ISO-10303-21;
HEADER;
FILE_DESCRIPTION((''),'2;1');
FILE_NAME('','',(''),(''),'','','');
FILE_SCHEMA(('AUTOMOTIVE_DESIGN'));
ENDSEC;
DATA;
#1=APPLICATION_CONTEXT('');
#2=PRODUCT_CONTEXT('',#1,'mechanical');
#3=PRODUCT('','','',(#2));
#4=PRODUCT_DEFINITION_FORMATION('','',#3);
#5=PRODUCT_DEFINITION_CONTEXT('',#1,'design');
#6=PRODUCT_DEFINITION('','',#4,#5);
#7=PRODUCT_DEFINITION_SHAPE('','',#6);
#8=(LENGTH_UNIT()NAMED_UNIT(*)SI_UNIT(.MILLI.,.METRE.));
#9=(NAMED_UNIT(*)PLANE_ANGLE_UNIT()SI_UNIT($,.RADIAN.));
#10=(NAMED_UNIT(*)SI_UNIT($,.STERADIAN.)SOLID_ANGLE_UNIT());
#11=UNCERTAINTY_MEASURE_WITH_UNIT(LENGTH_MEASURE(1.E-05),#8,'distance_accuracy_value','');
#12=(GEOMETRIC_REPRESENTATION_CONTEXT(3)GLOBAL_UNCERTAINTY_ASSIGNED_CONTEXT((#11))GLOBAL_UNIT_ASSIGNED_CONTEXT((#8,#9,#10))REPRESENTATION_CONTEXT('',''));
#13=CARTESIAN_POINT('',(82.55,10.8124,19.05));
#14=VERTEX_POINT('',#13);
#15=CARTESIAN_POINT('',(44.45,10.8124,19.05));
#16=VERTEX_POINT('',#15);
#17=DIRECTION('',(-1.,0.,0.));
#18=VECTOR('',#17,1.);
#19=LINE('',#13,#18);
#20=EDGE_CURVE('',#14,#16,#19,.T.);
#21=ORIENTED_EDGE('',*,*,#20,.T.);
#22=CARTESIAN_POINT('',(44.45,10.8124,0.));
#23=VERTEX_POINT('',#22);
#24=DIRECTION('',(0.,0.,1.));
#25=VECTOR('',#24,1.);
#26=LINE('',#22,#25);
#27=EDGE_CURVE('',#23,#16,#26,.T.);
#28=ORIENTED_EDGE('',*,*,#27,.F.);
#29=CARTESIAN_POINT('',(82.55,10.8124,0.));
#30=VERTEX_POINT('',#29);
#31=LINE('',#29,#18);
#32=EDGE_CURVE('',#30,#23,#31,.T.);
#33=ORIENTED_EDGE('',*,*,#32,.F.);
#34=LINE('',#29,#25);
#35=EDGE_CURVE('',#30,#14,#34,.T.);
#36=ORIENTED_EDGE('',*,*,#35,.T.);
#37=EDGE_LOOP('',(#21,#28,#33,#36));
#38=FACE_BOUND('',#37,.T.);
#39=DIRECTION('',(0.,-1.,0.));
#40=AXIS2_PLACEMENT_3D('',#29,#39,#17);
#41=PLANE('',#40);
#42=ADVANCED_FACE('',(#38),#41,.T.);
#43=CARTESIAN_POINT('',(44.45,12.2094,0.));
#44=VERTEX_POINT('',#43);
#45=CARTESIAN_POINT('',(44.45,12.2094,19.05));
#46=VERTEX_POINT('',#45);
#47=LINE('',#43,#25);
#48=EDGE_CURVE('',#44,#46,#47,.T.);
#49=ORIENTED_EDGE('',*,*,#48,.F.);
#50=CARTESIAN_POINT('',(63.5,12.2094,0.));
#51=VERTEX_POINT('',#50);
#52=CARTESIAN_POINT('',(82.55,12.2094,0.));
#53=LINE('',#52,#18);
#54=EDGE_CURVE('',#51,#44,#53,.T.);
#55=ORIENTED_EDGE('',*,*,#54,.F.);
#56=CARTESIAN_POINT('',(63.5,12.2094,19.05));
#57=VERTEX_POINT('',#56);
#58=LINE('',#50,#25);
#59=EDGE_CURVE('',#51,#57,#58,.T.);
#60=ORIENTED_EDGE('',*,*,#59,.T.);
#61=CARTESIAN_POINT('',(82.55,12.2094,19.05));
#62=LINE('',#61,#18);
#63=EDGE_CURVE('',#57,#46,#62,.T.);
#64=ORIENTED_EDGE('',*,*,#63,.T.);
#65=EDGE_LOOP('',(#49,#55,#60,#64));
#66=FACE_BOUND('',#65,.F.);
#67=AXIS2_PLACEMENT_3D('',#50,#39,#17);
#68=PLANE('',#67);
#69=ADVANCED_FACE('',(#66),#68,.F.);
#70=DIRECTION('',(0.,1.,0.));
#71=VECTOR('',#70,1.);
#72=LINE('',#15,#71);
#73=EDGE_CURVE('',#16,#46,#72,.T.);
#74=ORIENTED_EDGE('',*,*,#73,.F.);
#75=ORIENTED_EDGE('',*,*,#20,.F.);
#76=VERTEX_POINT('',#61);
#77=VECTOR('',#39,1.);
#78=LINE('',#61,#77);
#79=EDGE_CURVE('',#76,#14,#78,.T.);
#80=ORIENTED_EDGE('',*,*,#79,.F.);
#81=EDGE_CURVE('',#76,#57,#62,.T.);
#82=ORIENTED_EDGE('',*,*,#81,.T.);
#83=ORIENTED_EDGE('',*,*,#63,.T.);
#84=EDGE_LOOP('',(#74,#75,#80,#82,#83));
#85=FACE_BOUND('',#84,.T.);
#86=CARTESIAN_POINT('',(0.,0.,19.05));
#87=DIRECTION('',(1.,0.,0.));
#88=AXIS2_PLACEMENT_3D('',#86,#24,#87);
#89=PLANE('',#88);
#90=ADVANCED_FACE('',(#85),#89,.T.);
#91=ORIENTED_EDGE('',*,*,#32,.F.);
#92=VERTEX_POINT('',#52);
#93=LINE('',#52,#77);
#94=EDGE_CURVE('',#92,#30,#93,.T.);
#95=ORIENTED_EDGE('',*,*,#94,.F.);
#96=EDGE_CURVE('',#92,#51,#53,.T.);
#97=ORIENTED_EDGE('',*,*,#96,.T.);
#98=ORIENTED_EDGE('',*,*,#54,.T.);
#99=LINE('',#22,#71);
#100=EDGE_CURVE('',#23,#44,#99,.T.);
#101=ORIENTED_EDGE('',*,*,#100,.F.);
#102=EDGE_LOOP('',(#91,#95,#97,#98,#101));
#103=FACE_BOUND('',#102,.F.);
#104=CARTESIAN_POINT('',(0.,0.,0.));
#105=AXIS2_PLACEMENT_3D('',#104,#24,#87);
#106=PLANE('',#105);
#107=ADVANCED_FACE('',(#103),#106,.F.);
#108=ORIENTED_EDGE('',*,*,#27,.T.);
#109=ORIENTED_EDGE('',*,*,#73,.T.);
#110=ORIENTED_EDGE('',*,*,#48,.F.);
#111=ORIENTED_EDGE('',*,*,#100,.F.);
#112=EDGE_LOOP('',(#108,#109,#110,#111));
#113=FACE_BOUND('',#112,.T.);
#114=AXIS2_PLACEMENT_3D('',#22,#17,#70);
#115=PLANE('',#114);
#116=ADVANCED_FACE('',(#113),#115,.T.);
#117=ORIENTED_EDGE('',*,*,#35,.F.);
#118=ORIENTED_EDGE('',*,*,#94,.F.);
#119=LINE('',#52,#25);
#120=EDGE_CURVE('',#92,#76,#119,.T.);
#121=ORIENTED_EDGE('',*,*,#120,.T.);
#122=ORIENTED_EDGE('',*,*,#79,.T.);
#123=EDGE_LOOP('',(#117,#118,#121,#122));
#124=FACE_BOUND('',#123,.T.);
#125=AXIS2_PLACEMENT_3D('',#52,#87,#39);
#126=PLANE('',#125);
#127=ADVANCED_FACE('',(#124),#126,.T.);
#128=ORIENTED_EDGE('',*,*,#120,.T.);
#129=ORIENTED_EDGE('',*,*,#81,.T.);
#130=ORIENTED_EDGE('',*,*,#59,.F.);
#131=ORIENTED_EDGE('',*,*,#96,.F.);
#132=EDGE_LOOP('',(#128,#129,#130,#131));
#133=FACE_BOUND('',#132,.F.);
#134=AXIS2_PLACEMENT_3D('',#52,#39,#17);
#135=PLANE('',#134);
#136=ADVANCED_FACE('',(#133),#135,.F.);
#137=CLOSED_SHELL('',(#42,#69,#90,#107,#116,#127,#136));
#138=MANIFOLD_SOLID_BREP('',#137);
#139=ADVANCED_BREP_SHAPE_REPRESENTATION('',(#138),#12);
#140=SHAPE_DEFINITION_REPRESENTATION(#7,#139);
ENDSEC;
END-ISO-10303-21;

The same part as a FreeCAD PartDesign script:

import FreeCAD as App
import Part
import Sketcher
from FreeCAD import Vector
Q = App.Units.Quantity


def add_polygon(sketch, points):
    """Adds a closed chain of lines whose ends are joined by coincident constraints."""
    first, n = sketch.GeometryCount, len(points)
    for a, b in zip(points, points[1:] + points[:1]):
        sketch.addGeometry(Part.LineSegment(App.Vector(*a, 0), App.Vector(*b, 0)), False)
    for i in range(n):
        sketch.addConstraint(Sketcher.Constraint("Coincident", first + i, 2, first + (i + 1) % n, 1))

doc = App.newDocument("Part")
body = doc.addObject("PartDesign::Body", "Body")

# Sketch on XY plane
sketch1 = body.newObject("Sketcher::SketchObject", "Sketch")
sketch1.AttachmentSupport = (doc.getObject("XY_Plane"), [""])
sketch1.MapMode = "FlatFace"
add_polygon(sketch1, [(82.5, 10.8), (82.5, 12.2), (44.5, 12.2), (44.5, 10.8)])  # lines 0-3
sketch1.addConstraint([
    Sketcher.Constraint("Vertical", 0),
    Sketcher.Constraint("Horizontal", 1),
    Sketcher.Constraint("Vertical", 2),
    Sketcher.Constraint("Horizontal", 3),
    Sketcher.Constraint("DistanceX", 1, 2, 1, 1, Q("1.5 in")),
    Sketcher.Constraint("DistanceY", 0, 1, 0, 2, Q("0.055 in")),
    Sketcher.Constraint("DistanceX", -1, 1, 0, 2, Q("3.25 in")),
    Sketcher.Constraint("DistanceY", -1, 1, 0, 2, Q("12.2094 mm")),
])
pad1 = body.newObject("PartDesign::Pad", "Pad")
pad1.Profile = sketch1
pad1.Length = Q("0.75 in")

doc.recompute()
